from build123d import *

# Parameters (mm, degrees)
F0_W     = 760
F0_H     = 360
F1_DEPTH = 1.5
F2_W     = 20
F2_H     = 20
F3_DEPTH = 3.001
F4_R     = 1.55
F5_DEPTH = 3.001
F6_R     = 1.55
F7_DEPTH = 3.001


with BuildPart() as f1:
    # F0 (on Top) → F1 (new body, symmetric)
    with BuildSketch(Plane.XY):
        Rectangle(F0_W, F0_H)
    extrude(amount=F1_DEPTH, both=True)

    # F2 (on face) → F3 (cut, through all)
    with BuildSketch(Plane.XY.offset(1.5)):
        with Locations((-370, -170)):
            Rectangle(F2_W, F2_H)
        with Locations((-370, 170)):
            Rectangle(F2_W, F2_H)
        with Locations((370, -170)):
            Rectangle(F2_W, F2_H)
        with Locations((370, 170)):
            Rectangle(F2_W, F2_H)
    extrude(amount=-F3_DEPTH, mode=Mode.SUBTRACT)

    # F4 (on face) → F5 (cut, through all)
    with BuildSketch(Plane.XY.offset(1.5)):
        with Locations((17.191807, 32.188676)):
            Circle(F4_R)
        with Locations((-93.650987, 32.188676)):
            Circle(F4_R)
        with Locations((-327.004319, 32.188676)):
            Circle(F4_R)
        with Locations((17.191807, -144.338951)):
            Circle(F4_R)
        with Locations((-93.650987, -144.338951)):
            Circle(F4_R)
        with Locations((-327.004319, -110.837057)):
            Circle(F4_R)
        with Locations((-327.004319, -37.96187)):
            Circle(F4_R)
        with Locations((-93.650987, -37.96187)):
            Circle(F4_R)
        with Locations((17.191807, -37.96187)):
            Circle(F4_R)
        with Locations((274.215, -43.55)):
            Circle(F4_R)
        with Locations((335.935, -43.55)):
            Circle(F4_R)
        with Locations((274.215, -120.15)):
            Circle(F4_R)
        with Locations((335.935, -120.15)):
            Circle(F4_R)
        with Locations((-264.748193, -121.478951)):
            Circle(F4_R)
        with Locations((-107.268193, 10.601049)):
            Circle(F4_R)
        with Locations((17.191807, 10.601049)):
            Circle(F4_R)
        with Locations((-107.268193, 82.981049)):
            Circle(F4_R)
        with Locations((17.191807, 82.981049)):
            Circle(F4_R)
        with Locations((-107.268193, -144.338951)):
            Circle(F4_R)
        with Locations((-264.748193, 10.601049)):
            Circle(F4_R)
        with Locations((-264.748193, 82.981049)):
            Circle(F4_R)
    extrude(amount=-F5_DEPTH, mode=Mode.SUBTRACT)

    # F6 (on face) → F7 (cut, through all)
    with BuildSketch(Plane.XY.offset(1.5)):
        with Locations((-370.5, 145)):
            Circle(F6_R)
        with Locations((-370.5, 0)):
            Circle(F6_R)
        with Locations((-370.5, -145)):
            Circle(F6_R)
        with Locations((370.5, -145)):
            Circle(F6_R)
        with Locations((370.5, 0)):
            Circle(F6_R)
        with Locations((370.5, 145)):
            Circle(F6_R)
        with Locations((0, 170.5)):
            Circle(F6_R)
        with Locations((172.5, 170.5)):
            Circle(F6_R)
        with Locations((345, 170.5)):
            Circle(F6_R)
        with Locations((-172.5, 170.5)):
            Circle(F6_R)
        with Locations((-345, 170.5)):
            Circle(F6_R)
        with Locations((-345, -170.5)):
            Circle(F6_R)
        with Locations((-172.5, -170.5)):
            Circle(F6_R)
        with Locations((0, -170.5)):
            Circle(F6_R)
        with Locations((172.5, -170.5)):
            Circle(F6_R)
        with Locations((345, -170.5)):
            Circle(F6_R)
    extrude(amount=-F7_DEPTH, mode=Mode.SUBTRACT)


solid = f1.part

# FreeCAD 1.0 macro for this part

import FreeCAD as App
import Part
import Sketcher
from FreeCAD import Vector


def add_polygon(sketch, points):
    """Adds a closed chain of lines whose ends are joined by coincident constraints."""
    first, n = sketch.GeometryCount, len(points)
    for a, b in zip(points, points[1:] + points[:1]):
        sketch.addGeometry(Part.LineSegment(App.Vector(*a, 0), App.Vector(*b, 0)), False)
    for i in range(n):
        sketch.addConstraint(Sketcher.Constraint("Coincident", first + i, 2, first + (i + 1) % n, 1))

doc = App.newDocument("Part")
body = doc.addObject("PartDesign::Body", "Body")

sketch1 = body.newObject("Sketcher::SketchObject", "Sketch")
sketch1.AttachmentSupport = (doc.getObject("XY_Plane"), [""])
sketch1.MapMode = "FlatFace"
add_polygon(sketch1, [(-380, 180), (-380, -180), (380, -180), (380, 180)])
sketch1.addConstraint(Sketcher.Constraint("Vertical", 0))
sketch1.addConstraint(Sketcher.Constraint("Horizontal", 1))
sketch1.addConstraint(Sketcher.Constraint("Vertical", 2))
sketch1.addConstraint(Sketcher.Constraint("Horizontal", 3))
sketch1.addConstraint(Sketcher.Constraint("Symmetric", 0, 2, 2, 2, -1, 1))
sketch1.addConstraint(Sketcher.Constraint("DistanceX", 1, 1, 1, 2, 760.0))
sketch1.addConstraint(Sketcher.Constraint("DistanceY", 0, 2, 0, 1, 360.0))
pad1 = body.newObject("PartDesign::Pad", "Pad")
pad1.Profile = sketch1
pad1.Length = 3
pad1.Midplane = True

sketch2 = body.newObject("Sketcher::SketchObject", "Sketch001")
sketch2.AttachmentSupport = (doc.getObject("XY_Plane"), [""])
sketch2.MapMode = "FlatFace"
sketch2.AttachmentOffset = App.Placement(Vector(0, 0, 1.5), App.Rotation())
add_polygon(sketch2, [(-380, -160), (-380, -180), (-360, -180), (-360, -160)])
add_polygon(sketch2, [(-380, 180), (-380, 160), (-360, 160), (-360, 180)])
add_polygon(sketch2, [(360, -160), (360, -180), (380, -180), (380, -160)])
add_polygon(sketch2, [(360, 180), (360, 160), (380, 160), (380, 180)])
sketch2.addConstraint(Sketcher.Constraint("Vertical", 0))
sketch2.addConstraint(Sketcher.Constraint("Horizontal", 1))
sketch2.addConstraint(Sketcher.Constraint("Vertical", 2))
sketch2.addConstraint(Sketcher.Constraint("Horizontal", 3))
sketch2.addConstraint(Sketcher.Constraint("Vertical", 4))
sketch2.addConstraint(Sketcher.Constraint("Horizontal", 5))
sketch2.addConstraint(Sketcher.Constraint("Vertical", 6))
sketch2.addConstraint(Sketcher.Constraint("Horizontal", 7))
sketch2.addConstraint(Sketcher.Constraint("Vertical", 8))
sketch2.addConstraint(Sketcher.Constraint("Horizontal", 9))
sketch2.addConstraint(Sketcher.Constraint("Vertical", 10))
sketch2.addConstraint(Sketcher.Constraint("Horizontal", 11))
sketch2.addConstraint(Sketcher.Constraint("Vertical", 12))
sketch2.addConstraint(Sketcher.Constraint("Horizontal", 13))
sketch2.addConstraint(Sketcher.Constraint("Vertical", 14))
sketch2.addConstraint(Sketcher.Constraint("Horizontal", 15))
sketch2.addConstraint(Sketcher.Constraint("Symmetric", 6, 2, 8, 2, -1, 1))
sketch2.addConstraint(Sketcher.Constraint("Symmetric", 4, 2, 10, 2, -1, 1))
sketch2.addConstraint(Sketcher.Constraint("Symmetric", 2, 2, 12, 2, -1, 1))
sketch2.addConstraint(Sketcher.Constraint("Symmetric", 0, 2, 14, 2, -1, 1))
sketch2.addConstraint(Sketcher.Constraint("Symmetric", 1, 2, 8, 2, -2))
sketch2.addConstraint(Sketcher.Constraint("Symmetric", 3, 2, 10, 2, -2))
sketch2.addConstraint(Sketcher.Constraint("Equal", 15, 0))
sketch2.addConstraint(Sketcher.Constraint("DistanceX", 1, 1, 1, 2, 20.0))
sketch2.addConstraint(Sketcher.Constraint("DistanceX", 0, 2, -1, 1, 380.0))
sketch2.addConstraint(Sketcher.Constraint("DistanceY", 0, 2, -1, 1, 180.0))
pocket1 = body.newObject("PartDesign::Pocket", "Pocket")
pocket1.Profile = sketch2
pocket1.Type = "ThroughAll"

sketch3 = body.newObject("Sketcher::SketchObject", "Sketch002")
sketch3.AttachmentSupport = (doc.getObject("XY_Plane"), [""])
sketch3.MapMode = "FlatFace"
sketch3.AttachmentOffset = App.Placement(Vector(0, 0, 1.5), App.Rotation())
sketch3.addGeometry(Part.Circle(Vector(17.191807, 32.188676, 0), Vector(0, 0, 1), 1.55), False)
sketch3.addGeometry(Part.Circle(Vector(-93.650987, 32.188676, 0), Vector(0, 0, 1), 1.55), False)
sketch3.addGeometry(Part.Circle(Vector(-327.004319, 32.188676, 0), Vector(0, 0, 1), 1.55), False)
sketch3.addGeometry(Part.Circle(Vector(17.191807, -144.338951, 0), Vector(0, 0, 1), 1.55), False)
sketch3.addGeometry(Part.Circle(Vector(-93.650987, -144.338951, 0), Vector(0, 0, 1), 1.55), False)
sketch3.addGeometry(Part.Circle(Vector(-327.004319, -110.837057, 0), Vector(0, 0, 1), 1.55), False)
sketch3.addGeometry(Part.Circle(Vector(-327.004319, -37.96187, 0), Vector(0, 0, 1), 1.55), False)
sketch3.addGeometry(Part.Circle(Vector(-93.650987, -37.96187, 0), Vector(0, 0, 1), 1.55), False)
sketch3.addGeometry(Part.Circle(Vector(17.191807, -37.96187, 0), Vector(0, 0, 1), 1.55), False)
sketch3.addGeometry(Part.Circle(Vector(274.215, -43.55, 0), Vector(0, 0, 1), 1.55), False)
sketch3.addGeometry(Part.Circle(Vector(335.935, -43.55, 0), Vector(0, 0, 1), 1.55), False)
sketch3.addGeometry(Part.Circle(Vector(274.215, -120.15, 0), Vector(0, 0, 1), 1.55), False)
sketch3.addGeometry(Part.Circle(Vector(335.935, -120.15, 0), Vector(0, 0, 1), 1.55), False)
sketch3.addGeometry(Part.Circle(Vector(-264.748193, -121.478951, 0), Vector(0, 0, 1), 1.55), False)
sketch3.addGeometry(Part.Circle(Vector(-107.268193, 10.601049, 0), Vector(0, 0, 1), 1.55), False)
sketch3.addGeometry(Part.Circle(Vector(17.191807, 10.601049, 0), Vector(0, 0, 1), 1.55), False)
sketch3.addGeometry(Part.Circle(Vector(-107.268193, 82.981049, 0), Vector(0, 0, 1), 1.55), False)
sketch3.addGeometry(Part.Circle(Vector(17.191807, 82.981049, 0), Vector(0, 0, 1), 1.55), False)
sketch3.addGeometry(Part.Circle(Vector(-107.268193, -144.338951, 0), Vector(0, 0, 1), 1.55), False)
sketch3.addGeometry(Part.Circle(Vector(-264.748193, 10.601049, 0), Vector(0, 0, 1), 1.55), False)
sketch3.addGeometry(Part.Circle(Vector(-264.748193, 82.981049, 0), Vector(0, 0, 1), 1.55), False)
sketch3.addConstraint(Sketcher.Constraint("Equal", 0, 1))
sketch3.addConstraint(Sketcher.Constraint("Equal", 1, 2))
sketch3.addConstraint(Sketcher.Constraint("Equal", 2, 3))
sketch3.addConstraint(Sketcher.Constraint("Equal", 3, 4))
sketch3.addConstraint(Sketcher.Constraint("Equal", 4, 5))
sketch3.addConstraint(Sketcher.Constraint("Equal", 5, 6))
sketch3.addConstraint(Sketcher.Constraint("Equal", 6, 7))
sketch3.addConstraint(Sketcher.Constraint("Equal", 7, 8))
sketch3.addConstraint(Sketcher.Constraint("Equal", 8, 9))
sketch3.addConstraint(Sketcher.Constraint("Equal", 9, 10))
sketch3.addConstraint(Sketcher.Constraint("Equal", 10, 11))
sketch3.addConstraint(Sketcher.Constraint("Equal", 11, 12))
sketch3.addConstraint(Sketcher.Constraint("Equal", 12, 13))
sketch3.addConstraint(Sketcher.Constraint("Equal", 13, 14))
sketch3.addConstraint(Sketcher.Constraint("Equal", 14, 15))
sketch3.addConstraint(Sketcher.Constraint("Equal", 15, 16))
sketch3.addConstraint(Sketcher.Constraint("Equal", 16, 17))
sketch3.addConstraint(Sketcher.Constraint("Equal", 17, 18))
sketch3.addConstraint(Sketcher.Constraint("Equal", 18, 19))
sketch3.addConstraint(Sketcher.Constraint("Equal", 19, 20))
sketch3.addConstraint(Sketcher.Constraint("Horizontal", 0, 3, 1, 3))
sketch3.addConstraint(Sketcher.Constraint("Horizontal", 1, 3, 2, 3))
sketch3.addConstraint(Sketcher.Constraint("Horizontal", 3, 3, 4, 3))
sketch3.addConstraint(Sketcher.Constraint("Horizontal", 6, 3, 7, 3))
sketch3.addConstraint(Sketcher.Constraint("Horizontal", 7, 3, 8, 3))
sketch3.addConstraint(Sketcher.Constraint("Horizontal", 9, 3, 10, 3))
sketch3.addConstraint(Sketcher.Constraint("Horizontal", 11, 3, 12, 3))
sketch3.addConstraint(Sketcher.Constraint("Horizontal", 14, 3, 15, 3))
sketch3.addConstraint(Sketcher.Constraint("Horizontal", 16, 3, 17, 3))
sketch3.addConstraint(Sketcher.Constraint("Horizontal", 4, 3, 18, 3))
sketch3.addConstraint(Sketcher.Constraint("Horizontal", 15, 3, 19, 3))
sketch3.addConstraint(Sketcher.Constraint("Horizontal", 17, 3, 20, 3))
sketch3.addConstraint(Sketcher.Constraint("Vertical", 0, 3, 3, 3))
sketch3.addConstraint(Sketcher.Constraint("Vertical", 1, 3, 4, 3))
sketch3.addConstraint(Sketcher.Constraint("Vertical", 2, 3, 5, 3))
sketch3.addConstraint(Sketcher.Constraint("Vertical", 5, 3, 6, 3))
sketch3.addConstraint(Sketcher.Constraint("Vertical", 4, 3, 7, 3))
sketch3.addConstraint(Sketcher.Constraint("Vertical", 3, 3, 8, 3))
sketch3.addConstraint(Sketcher.Constraint("Vertical", 9, 3, 11, 3))
sketch3.addConstraint(Sketcher.Constraint("Vertical", 10, 3, 12, 3))
sketch3.addConstraint(Sketcher.Constraint("Vertical", 8, 3, 15, 3))
sketch3.addConstraint(Sketcher.Constraint("Vertical", 14, 3, 16, 3))
sketch3.addConstraint(Sketcher.Constraint("Vertical", 15, 3, 17, 3))
sketch3.addConstraint(Sketcher.Constraint("Vertical", 16, 3, 18, 3))
sketch3.addConstraint(Sketcher.Constraint("Vertical", 13, 3, 19, 3))
sketch3.addConstraint(Sketcher.Constraint("Vertical", 19, 3, 20, 3))
sketch3.addConstraint(Sketcher.Constraint("Diameter", 0, 3.1))
sketch3.addConstraint(Sketcher.Constraint("DistanceY", 11, 3, 9, 3, 76.6))
sketch3.addConstraint(Sketcher.Constraint("DistanceY", 9, 3, -1, 1, 43.55))
sketch3.addConstraint(Sketcher.Constraint("DistanceX", 9, 3, 10, 3, 61.72))
sketch3.addConstraint(Sketcher.Constraint("DistanceY", 4, 3, 13, 3, 22.86))
sketch3.addConstraint(Sketcher.Constraint("DistanceX", 14, 3, 0, 3, 124.46))
sketch3.addConstraint(Sketcher.Constraint("DistanceY", 4, 3, 14, 3, 154.94))
sketch3.addConstraint(Sketcher.Constraint("DistanceY", 14, 3, 16, 3, 72.38))
sketch3.addConstraint(Sketcher.Constraint("DistanceX", 13, 3, 18, 3, 157.48))
sketch3.addConstraint(Sketcher.Constraint("DistanceX", -1, 1, 9, 3, 274.215))
sketch3.addConstraint(Sketcher.Constraint("DistanceX", 2, 3, -1, 1, 327.004319))
sketch3.addConstraint(Sketcher.Constraint("DistanceY", 3, 3, -1, 1, 144.338951))
sketch3.addConstraint(Sketcher.Constraint("DistanceY", 6, 3, -1, 1, 37.96187))
sketch3.addConstraint(Sketcher.Constraint("DistanceX", -1, 1, 0, 3, 17.191807))
sketch3.addConstraint(Sketcher.Constraint("DistanceY", -1, 1, 0, 3, 32.188676))
sketch3.addConstraint(Sketcher.Constraint("DistanceX", 1, 3, -1, 1, 93.650987))
sketch3.addConstraint(Sketcher.Constraint("DistanceY", 5, 3, -1, 1, 110.837057))
pocket2 = body.newObject("PartDesign::Pocket", "Pocket001")
pocket2.Profile = sketch3
pocket2.Type = "ThroughAll"

sketch4 = body.newObject("Sketcher::SketchObject", "Sketch003")
sketch4.AttachmentSupport = (doc.getObject("XY_Plane"), [""])
sketch4.MapMode = "FlatFace"
sketch4.AttachmentOffset = App.Placement(Vector(0, 0, 1.5), App.Rotation())
sketch4.addGeometry(Part.Circle(Vector(-370.5, 145, 0), Vector(0, 0, 1), 1.55), False)
sketch4.addGeometry(Part.Circle(Vector(-370.5, 0, 0), Vector(0, 0, 1), 1.55), False)
sketch4.addGeometry(Part.Circle(Vector(-370.5, -145, 0), Vector(0, 0, 1), 1.55), False)
sketch4.addGeometry(Part.Circle(Vector(370.5, -145, 0), Vector(0, 0, 1), 1.55), False)
sketch4.addGeometry(Part.Circle(Vector(370.5, 0, 0), Vector(0, 0, 1), 1.55), False)
sketch4.addGeometry(Part.Circle(Vector(370.5, 145, 0), Vector(0, 0, 1), 1.55), False)
sketch4.addGeometry(Part.Circle(Vector(0, 170.5, 0), Vector(0, 0, 1), 1.55), False)
sketch4.addGeometry(Part.Circle(Vector(172.5, 170.5, 0), Vector(0, 0, 1), 1.55), False)
sketch4.addGeometry(Part.Circle(Vector(345, 170.5, 0), Vector(0, 0, 1), 1.55), False)
sketch4.addGeometry(Part.Circle(Vector(-172.5, 170.5, 0), Vector(0, 0, 1), 1.55), False)
sketch4.addGeometry(Part.Circle(Vector(-345, 170.5, 0), Vector(0, 0, 1), 1.55), False)
sketch4.addGeometry(Part.Circle(Vector(-345, -170.5, 0), Vector(0, 0, 1), 1.55), False)
sketch4.addGeometry(Part.Circle(Vector(-172.5, -170.5, 0), Vector(0, 0, 1), 1.55), False)
sketch4.addGeometry(Part.Circle(Vector(0, -170.5, 0), Vector(0, 0, 1), 1.55), False)
sketch4.addGeometry(Part.Circle(Vector(172.5, -170.5, 0), Vector(0, 0, 1), 1.55), False)
sketch4.addGeometry(Part.Circle(Vector(345, -170.5, 0), Vector(0, 0, 1), 1.55), False)
sketch4.addConstraint(Sketcher.Constraint("Equal", 0, 1))
sketch4.addConstraint(Sketcher.Constraint("Equal", 1, 2))
sketch4.addConstraint(Sketcher.Constraint("Equal", 2, 3))
sketch4.addConstraint(Sketcher.Constraint("Equal", 3, 4))
sketch4.addConstraint(Sketcher.Constraint("Equal", 4, 5))
sketch4.addConstraint(Sketcher.Constraint("Equal", 5, 6))
sketch4.addConstraint(Sketcher.Constraint("Equal", 6, 7))
sketch4.addConstraint(Sketcher.Constraint("Equal", 7, 8))
sketch4.addConstraint(Sketcher.Constraint("Equal", 8, 9))
sketch4.addConstraint(Sketcher.Constraint("Equal", 9, 10))
sketch4.addConstraint(Sketcher.Constraint("Equal", 10, 11))
sketch4.addConstraint(Sketcher.Constraint("Equal", 11, 12))
sketch4.addConstraint(Sketcher.Constraint("Equal", 12, 13))
sketch4.addConstraint(Sketcher.Constraint("Equal", 13, 14))
sketch4.addConstraint(Sketcher.Constraint("Equal", 14, 15))
sketch4.addConstraint(Sketcher.Constraint("Symmetric", 0, 3, 3, 3, -1, 1))
sketch4.addConstraint(Sketcher.Constraint("Symmetric", 1, 3, 4, 3, -1, 1))
sketch4.addConstraint(Sketcher.Constraint("Symmetric", 2, 3, 5, 3, -1, 1))
sketch4.addConstraint(Sketcher.Constraint("Symmetric", 8, 3, 11, 3, -1, 1))
sketch4.addConstraint(Sketcher.Constraint("Symmetric", 7, 3, 12, 3, -1, 1))
sketch4.addConstraint(Sketcher.Constraint("Symmetric", 6, 3, 13, 3, -1, 1))
sketch4.addConstraint(Sketcher.Constraint("Symmetric", 9, 3, 14, 3, -1, 1))
sketch4.addConstraint(Sketcher.Constraint("Symmetric", 10, 3, 15, 3, -1, 1))
sketch4.addConstraint(Sketcher.Constraint("Symmetric", 2, 3, 3, 3, -2))
sketch4.addConstraint(Sketcher.Constraint("Symmetric", 7, 3, 9, 3, -2))
sketch4.addConstraint(Sketcher.Constraint("Symmetric", 8, 3, 10, 3, -2))
sketch4.addConstraint(Sketcher.Constraint("PointOnObject", 1, 3, -1))
sketch4.addConstraint(Sketcher.Constraint("PointOnObject", 6, 3, -2))
sketch4.addConstraint(Sketcher.Constraint("Horizontal", 6, 3, 7, 3))
sketch4.addConstraint(Sketcher.Constraint("Horizontal", 7, 3, 8, 3))
sketch4.addConstraint(Sketcher.Constraint("Vertical", 0, 3, 1, 3))
sketch4.addConstraint(Sketcher.Constraint("Diameter", 0, 3.1))
sketch4.addConstraint(Sketcher.Constraint("DistanceY", -1, 1, 0, 3, 145.0))
sketch4.addConstraint(Sketcher.Constraint("DistanceX", -1, 1, 8, 3, 345.0))
sketch4.addConstraint(Sketcher.Constraint("DistanceX", 2, 3, 3, 3, 741.0))
sketch4.addConstraint(Sketcher.Constraint("DistanceX", 7, 3, 5, 3, 198.0))
sketch4.addConstraint(Sketcher.Constraint("DistanceY", 11, 3, 10, 3, 341.0))
pocket3 = body.newObject("PartDesign::Pocket", "Pocket002")
pocket3.Profile = sketch4
pocket3.Type = "ThroughAll"

doc.recompute()
